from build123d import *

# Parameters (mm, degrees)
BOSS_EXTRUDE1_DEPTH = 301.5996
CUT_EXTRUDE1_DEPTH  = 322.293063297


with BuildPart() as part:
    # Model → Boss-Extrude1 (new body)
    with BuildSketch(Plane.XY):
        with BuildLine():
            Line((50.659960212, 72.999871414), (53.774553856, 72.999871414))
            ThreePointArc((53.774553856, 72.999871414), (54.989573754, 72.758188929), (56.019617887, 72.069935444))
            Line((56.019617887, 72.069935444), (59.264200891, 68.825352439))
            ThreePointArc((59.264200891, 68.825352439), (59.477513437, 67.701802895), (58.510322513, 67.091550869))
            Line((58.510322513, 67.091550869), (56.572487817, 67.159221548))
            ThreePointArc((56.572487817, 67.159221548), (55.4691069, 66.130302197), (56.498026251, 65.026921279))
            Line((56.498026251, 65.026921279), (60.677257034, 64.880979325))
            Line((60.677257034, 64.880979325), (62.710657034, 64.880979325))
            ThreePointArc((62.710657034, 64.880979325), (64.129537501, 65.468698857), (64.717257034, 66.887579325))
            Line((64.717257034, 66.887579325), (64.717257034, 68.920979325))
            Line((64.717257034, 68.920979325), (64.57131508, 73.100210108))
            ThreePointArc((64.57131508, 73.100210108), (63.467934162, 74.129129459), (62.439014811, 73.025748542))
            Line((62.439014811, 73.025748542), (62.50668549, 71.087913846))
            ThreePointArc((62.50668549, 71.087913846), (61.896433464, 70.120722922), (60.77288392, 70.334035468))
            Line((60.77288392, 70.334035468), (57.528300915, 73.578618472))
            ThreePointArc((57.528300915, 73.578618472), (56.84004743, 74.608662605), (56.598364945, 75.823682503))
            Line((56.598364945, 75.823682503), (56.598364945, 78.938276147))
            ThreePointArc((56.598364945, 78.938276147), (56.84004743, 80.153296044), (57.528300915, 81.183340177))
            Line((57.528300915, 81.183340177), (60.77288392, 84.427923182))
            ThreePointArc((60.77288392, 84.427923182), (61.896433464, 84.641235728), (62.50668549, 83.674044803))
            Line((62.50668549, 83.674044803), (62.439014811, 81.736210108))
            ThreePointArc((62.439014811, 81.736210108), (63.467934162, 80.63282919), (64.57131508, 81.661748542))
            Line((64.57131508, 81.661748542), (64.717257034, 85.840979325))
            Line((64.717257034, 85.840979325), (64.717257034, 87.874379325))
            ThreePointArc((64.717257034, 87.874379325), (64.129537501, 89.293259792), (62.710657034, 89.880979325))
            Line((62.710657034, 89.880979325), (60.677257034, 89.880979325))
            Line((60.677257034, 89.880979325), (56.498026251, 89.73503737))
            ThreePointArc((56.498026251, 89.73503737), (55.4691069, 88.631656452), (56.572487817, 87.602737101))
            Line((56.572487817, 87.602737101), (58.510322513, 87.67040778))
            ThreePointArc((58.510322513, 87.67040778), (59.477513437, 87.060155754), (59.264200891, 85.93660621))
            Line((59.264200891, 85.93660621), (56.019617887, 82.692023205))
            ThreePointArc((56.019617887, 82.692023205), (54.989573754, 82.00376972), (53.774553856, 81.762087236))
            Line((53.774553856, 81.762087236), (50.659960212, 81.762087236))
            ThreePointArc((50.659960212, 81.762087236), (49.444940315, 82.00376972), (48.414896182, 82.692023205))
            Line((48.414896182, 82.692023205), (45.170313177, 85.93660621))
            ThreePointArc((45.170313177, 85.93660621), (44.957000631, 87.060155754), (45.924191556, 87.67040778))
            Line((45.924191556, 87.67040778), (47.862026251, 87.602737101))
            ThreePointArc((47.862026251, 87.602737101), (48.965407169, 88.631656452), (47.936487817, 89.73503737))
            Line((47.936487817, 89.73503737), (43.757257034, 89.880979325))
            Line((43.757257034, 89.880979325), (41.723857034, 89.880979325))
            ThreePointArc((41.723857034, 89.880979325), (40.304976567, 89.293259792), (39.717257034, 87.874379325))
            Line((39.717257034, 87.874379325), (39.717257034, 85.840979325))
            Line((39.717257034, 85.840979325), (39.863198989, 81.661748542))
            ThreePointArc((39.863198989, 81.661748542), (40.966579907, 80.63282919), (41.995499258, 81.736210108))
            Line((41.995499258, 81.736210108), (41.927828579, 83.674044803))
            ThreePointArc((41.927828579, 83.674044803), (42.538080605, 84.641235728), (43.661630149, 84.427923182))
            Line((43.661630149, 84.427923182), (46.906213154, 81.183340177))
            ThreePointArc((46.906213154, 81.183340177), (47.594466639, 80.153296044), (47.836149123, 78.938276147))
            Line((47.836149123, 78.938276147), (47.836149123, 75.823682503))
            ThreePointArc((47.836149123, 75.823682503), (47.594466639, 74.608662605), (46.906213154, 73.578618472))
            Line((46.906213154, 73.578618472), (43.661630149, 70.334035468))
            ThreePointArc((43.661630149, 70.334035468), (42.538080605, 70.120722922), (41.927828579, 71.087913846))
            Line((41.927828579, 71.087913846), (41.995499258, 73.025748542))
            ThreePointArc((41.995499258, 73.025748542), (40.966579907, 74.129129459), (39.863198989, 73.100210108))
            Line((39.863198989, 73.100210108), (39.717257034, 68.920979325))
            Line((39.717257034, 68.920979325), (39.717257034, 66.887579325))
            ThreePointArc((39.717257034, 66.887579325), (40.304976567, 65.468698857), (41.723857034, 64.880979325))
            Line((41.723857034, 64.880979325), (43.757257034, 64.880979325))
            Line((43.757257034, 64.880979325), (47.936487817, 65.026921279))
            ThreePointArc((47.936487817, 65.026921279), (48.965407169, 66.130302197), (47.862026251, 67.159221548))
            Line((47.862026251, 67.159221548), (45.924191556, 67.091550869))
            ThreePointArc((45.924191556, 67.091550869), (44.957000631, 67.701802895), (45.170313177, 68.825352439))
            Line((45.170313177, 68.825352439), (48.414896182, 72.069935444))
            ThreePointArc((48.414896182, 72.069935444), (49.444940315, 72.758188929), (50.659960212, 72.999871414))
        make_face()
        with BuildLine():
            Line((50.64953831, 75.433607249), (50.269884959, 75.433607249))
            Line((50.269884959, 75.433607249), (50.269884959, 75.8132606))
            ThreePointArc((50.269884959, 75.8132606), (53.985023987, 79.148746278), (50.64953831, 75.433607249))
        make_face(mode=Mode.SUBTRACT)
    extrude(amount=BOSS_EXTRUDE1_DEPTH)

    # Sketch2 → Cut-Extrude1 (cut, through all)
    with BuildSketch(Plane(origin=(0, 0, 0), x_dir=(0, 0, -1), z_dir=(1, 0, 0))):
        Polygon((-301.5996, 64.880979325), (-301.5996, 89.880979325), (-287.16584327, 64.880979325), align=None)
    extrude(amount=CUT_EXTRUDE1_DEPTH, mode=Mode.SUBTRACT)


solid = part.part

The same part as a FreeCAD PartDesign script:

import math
import FreeCAD as App
import Part
import Sketcher

V = App.Vector
Q = App.Units.Quantity

doc = App.newDocument("Part")
body = doc.addObject("PartDesign::Body", "Body")

# Sketch on XY plane
sketch1 = doc.addObject("Sketcher::SketchObject", "Sketch")
body.addObject(sketch1)
sketch1.AttachmentSupport = (doc.XY_Plane, [""])
sketch1.MapMode = "FlatFace"
sketch1.addGeometry([
    Part.LineSegment(V(50.66, 73, 0), V(53.77, 73, 0)),  # 0
    Part.ArcOfCircle(Part.Circle(V(53.77, 69.82, 0), V(0, 0, 1), 3.18), math.radians(45), math.radians(90)),  # 1
    Part.LineSegment(V(56.02, 72.07, 0), V(59.26, 68.83, 0)),  # 2
    Part.ArcOfCircle(Part.Circle(V(58.55, 68.11, 0), V(0, 0, 1), 1.02), math.radians(-92), math.radians(45)),  # 3
    Part.LineSegment(V(58.51, 67.09, 0), V(56.57, 67.16, 0)),  # 4
    Part.ArcOfCircle(Part.Circle(V(56.54, 66.09, 0), V(0, 0, 1), 1.07), math.radians(88), math.radians(268)),  # 5
    Part.LineSegment(V(56.5, 65.03, 0), V(60.68, 64.88, 0)),  # 6
    Part.LineSegment(V(60.68, 64.88, 0), V(62.71, 64.88, 0)),  # 7
    Part.ArcOfCircle(Part.Circle(V(62.71, 66.89, 0), V(0, 0, 1), 2.01), math.radians(-90), math.radians(0)),  # 8
    Part.LineSegment(V(64.72, 66.89, 0), V(64.72, 68.92, 0)),  # 9
    Part.LineSegment(V(64.72, 68.92, 0), V(64.57, 73.1, 0)),  # 10
    Part.ArcOfCircle(Part.Circle(V(63.51, 73.06, 0), V(0, 0, 1), 1.07), math.radians(2), math.radians(182)),  # 11
    Part.LineSegment(V(62.44, 73.03, 0), V(62.51, 71.09, 0)),  # 12
    Part.ArcOfCircle(Part.Circle(V(61.49, 71.05, 0), V(0, 0, 1), 1.02), math.radians(-135), math.radians(2)),  # 13
    Part.LineSegment(V(60.77, 70.33, 0), V(57.53, 73.58, 0)),  # 14
    Part.ArcOfCircle(Part.Circle(V(59.77, 75.82, 0), V(0, 0, 1), 3.18), math.radians(-180), math.radians(-135)),  # 15
    Part.LineSegment(V(56.6, 75.82, 0), V(56.6, 78.94, 0)),  # 16
    Part.ArcOfCircle(Part.Circle(V(59.77, 78.94, 0), V(0, 0, 1), 3.18), math.radians(135), math.radians(180)),  # 17
    Part.LineSegment(V(57.53, 81.18, 0), V(60.77, 84.43, 0)),  # 18
    Part.ArcOfCircle(Part.Circle(V(61.49, 83.71, 0), V(0, 0, 1), 1.02), math.radians(-2), math.radians(135)),  # 19
    Part.LineSegment(V(62.51, 83.67, 0), V(62.44, 81.74, 0)),  # 20
    Part.ArcOfCircle(Part.Circle(V(63.51, 81.7, 0), V(0, 0, 1), 1.07), math.radians(178), math.radians(358)),  # 21
    Part.LineSegment(V(64.57, 81.66, 0), V(64.72, 85.84, 0)),  # 22
    Part.LineSegment(V(64.72, 85.84, 0), V(64.72, 87.87, 0)),  # 23
    Part.ArcOfCircle(Part.Circle(V(62.71, 87.87, 0), V(0, 0, 1), 2.01), math.radians(0), math.radians(90)),  # 24
    Part.LineSegment(V(62.71, 89.88, 0), V(60.68, 89.88, 0)),  # 25
    Part.LineSegment(V(60.68, 89.88, 0), V(56.5, 89.74, 0)),  # 26
    Part.ArcOfCircle(Part.Circle(V(56.54, 88.67, 0), V(0, 0, 1), 1.07), math.radians(92), math.radians(272)),  # 27
    Part.LineSegment(V(56.57, 87.6, 0), V(58.51, 87.67, 0)),  # 28
    Part.ArcOfCircle(Part.Circle(V(58.55, 86.66, 0), V(0, 0, 1), 1.02), math.radians(-45), math.radians(92)),  # 29
    Part.LineSegment(V(59.26, 85.94, 0), V(56.02, 82.69, 0)),  # 30
    Part.ArcOfCircle(Part.Circle(V(53.77, 84.94, 0), V(0, 0, 1), 3.18), math.radians(-90), math.radians(-45)),  # 31
    Part.LineSegment(V(53.77, 81.76, 0), V(50.66, 81.76, 0)),  # 32
    Part.ArcOfCircle(Part.Circle(V(50.66, 84.94, 0), V(0, 0, 1), 3.18), math.radians(-135), math.radians(-90)),  # 33
    Part.LineSegment(V(48.41, 82.69, 0), V(45.17, 85.94, 0)),  # 34
    Part.ArcOfCircle(Part.Circle(V(45.89, 86.66, 0), V(0, 0, 1), 1.02), math.radians(88), math.radians(225)),  # 35
    Part.LineSegment(V(45.92, 87.67, 0), V(47.86, 87.6, 0)),  # 36
    Part.ArcOfCircle(Part.Circle(V(47.9, 88.67, 0), V(0, 0, 1), 1.07), math.radians(-92), math.radians(88)),  # 37
    Part.LineSegment(V(47.94, 89.74, 0), V(43.76, 89.88, 0)),  # 38
    Part.LineSegment(V(43.76, 89.88, 0), V(41.72, 89.88, 0)),  # 39
    Part.ArcOfCircle(Part.Circle(V(41.72, 87.87, 0), V(0, 0, 1), 2.01), math.radians(90), math.radians(180)),  # 40
    Part.LineSegment(V(39.72, 87.87, 0), V(39.72, 85.84, 0)),  # 41
    Part.LineSegment(V(39.72, 85.84, 0), V(39.86, 81.66, 0)),  # 42
    Part.ArcOfCircle(Part.Circle(V(40.93, 81.7, 0), V(0, 0, 1), 1.07), math.radians(-178), math.radians(2)),  # 43
    Part.LineSegment(V(42, 81.74, 0), V(41.93, 83.67, 0)),  # 44
    Part.ArcOfCircle(Part.Circle(V(42.94, 83.71, 0), V(0, 0, 1), 1.02), math.radians(45), math.radians(182)),  # 45
    Part.LineSegment(V(43.66, 84.43, 0), V(46.91, 81.18, 0)),  # 46
    Part.ArcOfCircle(Part.Circle(V(44.66, 78.94, 0), V(0, 0, 1), 3.18), math.radians(0), math.radians(45)),  # 47
    Part.LineSegment(V(47.84, 78.94, 0), V(47.84, 75.82, 0)),  # 48
    Part.ArcOfCircle(Part.Circle(V(44.66, 75.82, 0), V(0, 0, 1), 3.18), math.radians(-45), math.radians(0)),  # 49
    Part.LineSegment(V(46.91, 73.58, 0), V(43.66, 70.33, 0)),  # 50
    Part.ArcOfCircle(Part.Circle(V(42.94, 71.05, 0), V(0, 0, 1), 1.02), math.radians(178), math.radians(315)),  # 51
    Part.LineSegment(V(41.93, 71.09, 0), V(42, 73.03, 0)),  # 52
    Part.ArcOfCircle(Part.Circle(V(40.93, 73.06, 0), V(0, 0, 1), 1.07), math.radians(-2), math.radians(178)),  # 53
    Part.LineSegment(V(39.86, 73.1, 0), V(39.72, 68.92, 0)),  # 54
    Part.LineSegment(V(39.72, 68.92, 0), V(39.72, 66.89, 0)),  # 55
    Part.ArcOfCircle(Part.Circle(V(41.72, 66.89, 0), V(0, 0, 1), 2.01), math.radians(180), math.radians(270)),  # 56
    Part.LineSegment(V(41.72, 64.88, 0), V(43.76, 64.88, 0)),  # 57
    Part.LineSegment(V(43.76, 64.88, 0), V(47.94, 65.03, 0)),  # 58
    Part.ArcOfCircle(Part.Circle(V(47.9, 66.09, 0), V(0, 0, 1), 1.07), math.radians(-88), math.radians(92)),  # 59
    Part.LineSegment(V(47.86, 67.16, 0), V(45.92, 67.09, 0)),  # 60
    Part.ArcOfCircle(Part.Circle(V(45.89, 68.11, 0), V(0, 0, 1), 1.02), math.radians(135), math.radians(272)),  # 61
    Part.LineSegment(V(45.17, 68.83, 0), V(48.41, 72.07, 0)),  # 62
    Part.ArcOfCircle(Part.Circle(V(50.66, 69.82, 0), V(0, 0, 1), 3.18), math.radians(90), math.radians(135)),  # 63
    Part.ArcOfCircle(Part.Circle(V(52.22, 77.38, 0), V(0, 0, 1), 2.5), math.radians(-129), math.radians(219)),  # 64
    Part.LineSegment(V(50.65, 75.43, 0), V(50.27, 75.43, 0)),  # 65
    Part.LineSegment(V(50.27, 75.43, 0), V(50.27, 75.81, 0)),  # 66
], False)
sketch1.addConstraint([
    Sketcher.Constraint("Tangent", 0, 2, 1, 2),
    Sketcher.Constraint("Tangent", 1, 1, 2, 1),
    Sketcher.Constraint("Tangent", 2, 2, 3, 2),
    Sketcher.Constraint("Tangent", 3, 1, 4, 1),
    Sketcher.Constraint("Tangent", 4, 2, 5, 1),
    Sketcher.Constraint("Tangent", 5, 2, 6, 1),
    Sketcher.Constraint("Coincident", 6, 2, 7, 1),
    Sketcher.Constraint("Tangent", 7, 2, 8, 1),
    Sketcher.Constraint("Tangent", 8, 2, 9, 1),
    Sketcher.Constraint("Coincident", 9, 2, 10, 1),
    Sketcher.Constraint("Tangent", 10, 2, 11, 1),
    Sketcher.Constraint("Tangent", 11, 2, 12, 1),
    Sketcher.Constraint("Tangent", 12, 2, 13, 2),
    Sketcher.Constraint("Tangent", 13, 1, 14, 1),
    Sketcher.Constraint("Tangent", 14, 2, 15, 2),
    Sketcher.Constraint("Tangent", 15, 1, 16, 1),
    Sketcher.Constraint("Tangent", 16, 2, 17, 2),
    Sketcher.Constraint("Tangent", 17, 1, 18, 1),
    Sketcher.Constraint("Tangent", 18, 2, 19, 2),
    Sketcher.Constraint("Tangent", 19, 1, 20, 1),
    Sketcher.Constraint("Tangent", 20, 2, 21, 1),
    Sketcher.Constraint("Tangent", 21, 2, 22, 1),
    Sketcher.Constraint("Coincident", 22, 2, 23, 1),
    Sketcher.Constraint("Tangent", 23, 2, 24, 1),
    Sketcher.Constraint("Tangent", 24, 2, 25, 1),
    Sketcher.Constraint("Coincident", 25, 2, 26, 1),
    Sketcher.Constraint("Tangent", 26, 2, 27, 1),
    Sketcher.Constraint("Tangent", 27, 2, 28, 1),
    Sketcher.Constraint("Tangent", 28, 2, 29, 2),
    Sketcher.Constraint("Tangent", 29, 1, 30, 1),
    Sketcher.Constraint("Tangent", 30, 2, 31, 2),
    Sketcher.Constraint("Tangent", 31, 1, 32, 1),
    Sketcher.Constraint("Tangent", 32, 2, 33, 2),
    Sketcher.Constraint("Tangent", 33, 1, 34, 1),
    Sketcher.Constraint("Tangent", 34, 2, 35, 2),
    Sketcher.Constraint("Tangent", 35, 1, 36, 1),
    Sketcher.Constraint("Tangent", 36, 2, 37, 1),
    Sketcher.Constraint("Tangent", 37, 2, 38, 1),
    Sketcher.Constraint("Coincident", 38, 2, 39, 1),
    Sketcher.Constraint("Tangent", 39, 2, 40, 1),
    Sketcher.Constraint("Tangent", 40, 2, 41, 1),
    Sketcher.Constraint("Coincident", 41, 2, 42, 1),
    Sketcher.Constraint("Tangent", 42, 2, 43, 1),
    Sketcher.Constraint("Tangent", 43, 2, 44, 1),
    Sketcher.Constraint("Tangent", 44, 2, 45, 2),
    Sketcher.Constraint("Tangent", 45, 1, 46, 1),
    Sketcher.Constraint("Tangent", 46, 2, 47, 2),
    Sketcher.Constraint("Tangent", 47, 1, 48, 1),
    Sketcher.Constraint("Tangent", 48, 2, 49, 2),
    Sketcher.Constraint("Tangent", 49, 1, 50, 1),
    Sketcher.Constraint("Tangent", 50, 2, 51, 2),
    Sketcher.Constraint("Tangent", 51, 1, 52, 1),
    Sketcher.Constraint("Tangent", 52, 2, 53, 1),
    Sketcher.Constraint("Tangent", 53, 2, 54, 1),
    Sketcher.Constraint("Coincident", 54, 2, 55, 1),
    Sketcher.Constraint("Tangent", 55, 2, 56, 1),
    Sketcher.Constraint("Tangent", 56, 2, 57, 1),
    Sketcher.Constraint("Coincident", 57, 2, 58, 1),
    Sketcher.Constraint("Tangent", 58, 2, 59, 1),
    Sketcher.Constraint("Tangent", 59, 2, 60, 1),
    Sketcher.Constraint("Tangent", 60, 2, 61, 2),
    Sketcher.Constraint("Tangent", 61, 1, 62, 1),
    Sketcher.Constraint("Tangent", 62, 2, 63, 2),
    Sketcher.Constraint("Tangent", 63, 1, 0, 1),
    Sketcher.Constraint("Coincident", 64, 1, 65, 1),
    Sketcher.Constraint("Coincident", 65, 2, 66, 1),
    Sketcher.Constraint("Coincident", 66, 2, 64, 2),
    Sketcher.Constraint("Horizontal", 0),
    Sketcher.Constraint("Horizontal", 7),
    Sketcher.Constraint("Vertical", 9),
    Sketcher.Constraint("Vertical", 16),
    Sketcher.Constraint("Vertical", 23),
    Sketcher.Constraint("Horizontal", 25),
    Sketcher.Constraint("Horizontal", 32),
    Sketcher.Constraint("Horizontal", 39),
    Sketcher.Constraint("Vertical", 41),
    Sketcher.Constraint("Vertical", 48),
    Sketcher.Constraint("Vertical", 55),
    Sketcher.Constraint("Horizontal", 57),
    Sketcher.Constraint("Horizontal", 65),
    Sketcher.Constraint("Vertical", 66),
    Sketcher.Constraint("Equal", 5, 11),
    Sketcher.Constraint("Equal", 3, 13),
    Sketcher.Constraint("Equal", 1, 15),
    Sketcher.Constraint("Equal", 15, 17),
    Sketcher.Constraint("Equal", 13, 19),
    Sketcher.Constraint("Equal", 11, 21),
    Sketcher.Constraint("Equal", 8, 24),
    Sketcher.Constraint("Equal", 21, 27),
    Sketcher.Constraint("Equal", 19, 29),
    Sketcher.Constraint("Equal", 17, 31),
    Sketcher.Constraint("Equal", 31, 33),
    Sketcher.Constraint("Equal", 29, 35),
    Sketcher.Constraint("Equal", 27, 37),
    Sketcher.Constraint("Equal", 24, 40),
    Sketcher.Constraint("Equal", 37, 43),
    Sketcher.Constraint("Equal", 35, 45),
    Sketcher.Constraint("Equal", 33, 47),
    Sketcher.Constraint("Equal", 47, 49),
    Sketcher.Constraint("Equal", 45, 51),
    Sketcher.Constraint("Equal", 43, 53),
    Sketcher.Constraint("Equal", 40, 56),
    Sketcher.Constraint("Equal", 53, 59),
    Sketcher.Constraint("Equal", 51, 61),
    Sketcher.Constraint("Equal", 49, 63),
    Sketcher.Constraint("Parallel", 4, 6),
    Sketcher.Constraint("Parallel", 10, 12),
    Sketcher.Constraint("Parallel", 2, 14),
    Sketcher.Constraint("Perpendicular", 14, 18),
    Sketcher.Constraint("Perpendicular", 6, 20),
    Sketcher.Constraint("Parallel", 20, 22),
    Sketcher.Constraint("Perpendicular", 12, 26),
    Sketcher.Constraint("Parallel", 26, 28),
    Sketcher.Constraint("Parallel", 18, 30),
    Sketcher.Constraint("Perpendicular", 30, 34),
    Sketcher.Constraint("Perpendicular", 22, 36),
    Sketcher.Constraint("Parallel", 36, 38),
    Sketcher.Constraint("Perpendicular", 28, 42),
    Sketcher.Constraint("Parallel", 42, 44),
    Sketcher.Constraint("Parallel", 34, 46),
    Sketcher.Constraint("Perpendicular", 46, 50),
    Sketcher.Constraint("Perpendicular", 38, 52),
    Sketcher.Constraint("Parallel", 52, 54),
    Sketcher.Constraint("Perpendicular", 44, 58),
    Sketcher.Constraint("Parallel", 58, 60),
    Sketcher.Constraint("Parallel", 50, 62),
    Sketcher.Constraint("Horizontal", 29, 3, 35, 3),
    Sketcher.Constraint("Horizontal", 27, 3, 37, 3),
    Sketcher.Constraint("Horizontal", 24, 3, 40, 3),
    Sketcher.Constraint("Horizontal", 21, 3, 43, 3),
    Sketcher.Constraint("Horizontal", 19, 3, 45, 3),
    Sketcher.Constraint("Horizontal", 17, 3, 47, 3),
    Sketcher.Constraint("Horizontal", 15, 3, 49, 3),
    Sketcher.Constraint("Horizontal", 13, 3, 51, 3),
    Sketcher.Constraint("Horizontal", 11, 3, 53, 3),
    Sketcher.Constraint("Horizontal", 8, 3, 56, 3),
    Sketcher.Constraint("Horizontal", 5, 3, 59, 3),
    Sketcher.Constraint("Horizontal", 3, 3, 61, 3),
    Sketcher.Constraint("Horizontal", 30, 2, 33, 1),
    Sketcher.Constraint("Horizontal", 22, 2, 41, 2),
    Sketcher.Constraint("Horizontal", 21, 2, 42, 2),
    Sketcher.Constraint("Horizontal", 9, 2, 54, 2),
    Sketcher.Constraint("Vertical", 13, 3, 19, 3),
    Sketcher.Constraint("Vertical", 11, 3, 21, 3),
    Sketcher.Constraint("Vertical", 8, 3, 24, 3),
    Sketcher.Constraint("Vertical", 5, 3, 27, 3),
    Sketcher.Constraint("Vertical", 3, 3, 29, 3),
    Sketcher.Constraint("Vertical", 1, 3, 31, 3),
    Sketcher.Constraint("Vertical", 37, 3, 59, 3),
    Sketcher.Constraint("Vertical", 6, 2, 25, 2),
    Sketcher.Constraint("Equal", 25, 39),
    Sketcher.Constraint("Equal", 57, 9),
    Sketcher.Constraint("Equal", 32, 16),
    Sketcher.Constraint("Equal", 9, 23),
    Sketcher.Constraint("Equal", 65, 66),
    Sketcher.Constraint("Equal", 6, 10),
    Sketcher.Constraint("Equal", 4, 12),
    Sketcher.Constraint("Equal", 2, 14),
    Sketcher.Constraint("Radius", 3, Q("0.04 in")),
    Sketcher.Constraint("Angle", 4, Q("178 deg")),
    Sketcher.Constraint("Radius", 1, Q("0.125 in")),
    Sketcher.Constraint("Radius", 5, Q("0.042 in")),
    Sketcher.Constraint("Radius", 8, Q("0.079 in")),
    Sketcher.Constraint("Radius", 64, Q("2.5 mm")),
    Sketcher.Constraint("DistanceX", 7, 1, 7, 2, Q("2.0334 mm")),
    Sketcher.Constraint("DistanceX", -1, 1, 2, 2, Q("59.264201 mm")),
    Sketcher.Constraint("DistanceX", -1, 1, 14, 2, Q("57.528301 mm")),
    Sketcher.Constraint("DistanceX", -1, 1, 42, 2, Q("39.863199 mm")),
    Sketcher.Constraint("Distance", 6, Q("4.181778 mm")),
    Sketcher.Constraint("DistanceX", 0, 1, 0, 2, Q("3.114594 mm")),
    Sketcher.Constraint("DistanceX", 65, 2, 65, 1, Q("0.379653 mm")),
    Sketcher.Constraint("DistanceY", -1, 1, 1, 3, Q("69.824871 mm")),
    Sketcher.Constraint("DistanceY", -1, 1, 64, 3, Q("77.380979 mm")),
    Sketcher.Constraint("DistanceX", -1, 1, 64, 1, Q("50.649538 mm")),
])
pad1 = doc.addObject("PartDesign::Pad", "Pad")
body.addObject(pad1)
pad1.Profile = sketch1
pad1.Length = Q("11.874 in")

# Sketch on YZ plane
sketch2 = doc.addObject("Sketcher::SketchObject", "Sketch001")
body.addObject(sketch2)
sketch2.AttachmentSupport = (doc.YZ_Plane, [""])
sketch2.MapMode = "FlatFace"
sketch2.addGeometry([
    Part.LineSegment(V(90, 302, 0), V(65, 302, 0)),
    Part.LineSegment(V(65, 302, 0), V(65, 287, 0)),
    Part.LineSegment(V(65, 287, 0), V(90, 302, 0)),
], False)
sketch2.addConstraint([
    Sketcher.Constraint("Coincident", 0, 2, 1, 1),
    Sketcher.Constraint("Coincident", 1, 2, 2, 1),
    Sketcher.Constraint("Coincident", 2, 2, 0, 1),
    Sketcher.Constraint("Horizontal", 0),
    Sketcher.Constraint("Vertical", 1),
    Sketcher.Constraint("Angle", 2, Q("30 deg")),
    Sketcher.Constraint("DistanceY", -1, 1, 0, 2, Q("11.874 in")),
    Sketcher.Constraint("DistanceX", 0, 2, 0, 1, Q("25 mm")),
    Sketcher.Constraint("DistanceX", -1, 1, 0, 2, Q("64.880979 mm")),
])
pocket1 = doc.addObject("PartDesign::Pocket", "Pocket")
body.addObject(pocket1)
pocket1.Profile = sketch2
pocket1.Type = "ThroughAll"
pocket1.Reversed = True

doc.recompute()
